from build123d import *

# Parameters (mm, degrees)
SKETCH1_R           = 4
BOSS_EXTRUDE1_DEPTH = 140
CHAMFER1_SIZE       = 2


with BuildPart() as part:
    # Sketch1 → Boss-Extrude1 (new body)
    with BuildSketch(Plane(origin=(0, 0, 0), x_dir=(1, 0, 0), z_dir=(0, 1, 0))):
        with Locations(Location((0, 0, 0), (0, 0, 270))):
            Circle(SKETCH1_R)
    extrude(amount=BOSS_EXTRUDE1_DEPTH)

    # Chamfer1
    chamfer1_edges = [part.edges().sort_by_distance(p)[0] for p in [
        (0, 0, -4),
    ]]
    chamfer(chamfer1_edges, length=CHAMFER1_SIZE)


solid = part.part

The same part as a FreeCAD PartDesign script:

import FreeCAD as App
import Part
import Sketcher
from FreeCAD import Vector


def edges_at(feature, points):
    """Names of the edges that pass closest to the given points."""
    edges = feature.Shape.Edges
    near = lambda p: min(range(len(edges)), key=lambda i: edges[i].distToShape(Part.Vertex(*p))[0])
    return sorted({f"Edge{near(p) + 1}" for p in points})

doc = App.newDocument("Part")
body = doc.addObject("PartDesign::Body", "Body")

sketch1 = doc.addObject("Sketcher::SketchObject", "Sketch")
body.addObject(sketch1)
sketch1.AttachmentSupport = (doc.XZ_Plane, [""])
sketch1.MapMode = "FlatFace"
sketch1.addGeometry(Part.Circle(Vector(0, 0, 0), Vector(0, 0, 1), 4), False)
sketch1.addConstraint([
    Sketcher.Constraint("Coincident", 0, 3, -1, 1),
    Sketcher.Constraint("Diameter", 0, 8.0),
])
pad1 = doc.addObject("PartDesign::Pad", "Pad")
body.addObject(pad1)
pad1.Profile = sketch1
pad1.Length = 140
pad1.Reversed = True
doc.recompute()

chamfer = doc.addObject("PartDesign::Chamfer", "Chamfer")
body.addObject(chamfer)
chamfer.Base = (pad1, edges_at(pad1, [(0, 0, -4)]))
chamfer.Size = 2

doc.recompute()
